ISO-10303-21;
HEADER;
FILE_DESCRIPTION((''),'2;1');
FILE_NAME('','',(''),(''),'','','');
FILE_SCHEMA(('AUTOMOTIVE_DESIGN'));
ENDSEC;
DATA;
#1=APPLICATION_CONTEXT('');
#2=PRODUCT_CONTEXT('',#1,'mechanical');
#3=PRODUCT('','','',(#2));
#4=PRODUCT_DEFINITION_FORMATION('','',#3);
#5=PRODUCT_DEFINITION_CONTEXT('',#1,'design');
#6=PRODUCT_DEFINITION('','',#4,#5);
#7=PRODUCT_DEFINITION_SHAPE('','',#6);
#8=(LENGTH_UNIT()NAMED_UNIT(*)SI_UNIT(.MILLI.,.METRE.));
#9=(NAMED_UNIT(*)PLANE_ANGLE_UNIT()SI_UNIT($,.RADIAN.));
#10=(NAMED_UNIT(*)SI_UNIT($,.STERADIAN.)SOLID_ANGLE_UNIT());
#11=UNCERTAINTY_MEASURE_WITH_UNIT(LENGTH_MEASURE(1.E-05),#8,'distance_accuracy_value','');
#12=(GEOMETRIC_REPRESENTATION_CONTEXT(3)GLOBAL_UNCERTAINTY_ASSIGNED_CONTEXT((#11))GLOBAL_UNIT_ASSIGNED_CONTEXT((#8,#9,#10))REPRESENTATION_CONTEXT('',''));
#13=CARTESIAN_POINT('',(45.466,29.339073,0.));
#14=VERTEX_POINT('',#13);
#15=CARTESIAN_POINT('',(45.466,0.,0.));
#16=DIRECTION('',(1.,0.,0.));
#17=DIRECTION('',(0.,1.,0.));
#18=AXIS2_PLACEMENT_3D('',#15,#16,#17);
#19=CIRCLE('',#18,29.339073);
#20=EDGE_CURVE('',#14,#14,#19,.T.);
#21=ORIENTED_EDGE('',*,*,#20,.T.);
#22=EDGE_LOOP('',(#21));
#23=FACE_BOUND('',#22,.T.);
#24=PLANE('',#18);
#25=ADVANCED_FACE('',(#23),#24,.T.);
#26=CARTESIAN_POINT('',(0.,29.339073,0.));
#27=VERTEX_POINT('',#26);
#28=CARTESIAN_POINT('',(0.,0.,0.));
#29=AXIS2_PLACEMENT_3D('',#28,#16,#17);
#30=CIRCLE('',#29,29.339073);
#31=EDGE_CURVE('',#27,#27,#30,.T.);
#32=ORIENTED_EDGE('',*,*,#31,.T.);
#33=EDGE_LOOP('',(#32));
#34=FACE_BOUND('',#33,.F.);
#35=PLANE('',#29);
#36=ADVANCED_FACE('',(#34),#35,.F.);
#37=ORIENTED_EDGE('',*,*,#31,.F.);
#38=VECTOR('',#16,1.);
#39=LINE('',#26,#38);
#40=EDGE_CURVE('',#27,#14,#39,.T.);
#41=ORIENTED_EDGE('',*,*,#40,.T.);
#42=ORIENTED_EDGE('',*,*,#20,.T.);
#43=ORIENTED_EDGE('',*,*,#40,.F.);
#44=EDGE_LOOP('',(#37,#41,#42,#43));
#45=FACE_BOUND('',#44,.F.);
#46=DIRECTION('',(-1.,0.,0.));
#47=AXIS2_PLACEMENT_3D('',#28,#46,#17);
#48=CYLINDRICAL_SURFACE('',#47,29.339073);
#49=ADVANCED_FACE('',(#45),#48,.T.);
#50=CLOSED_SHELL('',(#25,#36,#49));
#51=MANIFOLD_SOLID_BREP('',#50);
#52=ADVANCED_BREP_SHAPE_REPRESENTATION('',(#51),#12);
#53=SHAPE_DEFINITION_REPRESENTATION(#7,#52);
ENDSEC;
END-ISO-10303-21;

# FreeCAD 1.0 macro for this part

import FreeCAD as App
import Part
import Sketcher

V = App.Vector

doc = App.newDocument("Part")
params = doc.addObject("Spreadsheet::Sheet", "Params")
for row, (alias, value) in enumerate([
    ("pad1_length", "1.79 in"),
], start=1):
    params.set(f"A{row}", alias)
    params.set(f"B{row}", "=" + value)
    params.setAlias(f"B{row}", alias)

body = doc.addObject("PartDesign::Body", "Body")

sketch1 = body.newObject("Sketcher::SketchObject", "Sketch")
sketch1.AttachmentSupport = (doc.getObject("YZ_Plane"), [""])
sketch1.MapMode = "FlatFace"
sketch1.addGeometry(Part.Circle(V(0, 0, 0), V(0, 0, 1), 29), False)
sketch1.addConstraint([
    Sketcher.Constraint("Coincident", 0, 3, -1, 1),
    Sketcher.Constraint("Diameter", 0, 58.678146),
])
pad1 = body.newObject("PartDesign::Pad", "Pad")
pad1.Profile = sketch1
pad1.setExpression("Length", "Params.pad1_length")

doc.recompute()
